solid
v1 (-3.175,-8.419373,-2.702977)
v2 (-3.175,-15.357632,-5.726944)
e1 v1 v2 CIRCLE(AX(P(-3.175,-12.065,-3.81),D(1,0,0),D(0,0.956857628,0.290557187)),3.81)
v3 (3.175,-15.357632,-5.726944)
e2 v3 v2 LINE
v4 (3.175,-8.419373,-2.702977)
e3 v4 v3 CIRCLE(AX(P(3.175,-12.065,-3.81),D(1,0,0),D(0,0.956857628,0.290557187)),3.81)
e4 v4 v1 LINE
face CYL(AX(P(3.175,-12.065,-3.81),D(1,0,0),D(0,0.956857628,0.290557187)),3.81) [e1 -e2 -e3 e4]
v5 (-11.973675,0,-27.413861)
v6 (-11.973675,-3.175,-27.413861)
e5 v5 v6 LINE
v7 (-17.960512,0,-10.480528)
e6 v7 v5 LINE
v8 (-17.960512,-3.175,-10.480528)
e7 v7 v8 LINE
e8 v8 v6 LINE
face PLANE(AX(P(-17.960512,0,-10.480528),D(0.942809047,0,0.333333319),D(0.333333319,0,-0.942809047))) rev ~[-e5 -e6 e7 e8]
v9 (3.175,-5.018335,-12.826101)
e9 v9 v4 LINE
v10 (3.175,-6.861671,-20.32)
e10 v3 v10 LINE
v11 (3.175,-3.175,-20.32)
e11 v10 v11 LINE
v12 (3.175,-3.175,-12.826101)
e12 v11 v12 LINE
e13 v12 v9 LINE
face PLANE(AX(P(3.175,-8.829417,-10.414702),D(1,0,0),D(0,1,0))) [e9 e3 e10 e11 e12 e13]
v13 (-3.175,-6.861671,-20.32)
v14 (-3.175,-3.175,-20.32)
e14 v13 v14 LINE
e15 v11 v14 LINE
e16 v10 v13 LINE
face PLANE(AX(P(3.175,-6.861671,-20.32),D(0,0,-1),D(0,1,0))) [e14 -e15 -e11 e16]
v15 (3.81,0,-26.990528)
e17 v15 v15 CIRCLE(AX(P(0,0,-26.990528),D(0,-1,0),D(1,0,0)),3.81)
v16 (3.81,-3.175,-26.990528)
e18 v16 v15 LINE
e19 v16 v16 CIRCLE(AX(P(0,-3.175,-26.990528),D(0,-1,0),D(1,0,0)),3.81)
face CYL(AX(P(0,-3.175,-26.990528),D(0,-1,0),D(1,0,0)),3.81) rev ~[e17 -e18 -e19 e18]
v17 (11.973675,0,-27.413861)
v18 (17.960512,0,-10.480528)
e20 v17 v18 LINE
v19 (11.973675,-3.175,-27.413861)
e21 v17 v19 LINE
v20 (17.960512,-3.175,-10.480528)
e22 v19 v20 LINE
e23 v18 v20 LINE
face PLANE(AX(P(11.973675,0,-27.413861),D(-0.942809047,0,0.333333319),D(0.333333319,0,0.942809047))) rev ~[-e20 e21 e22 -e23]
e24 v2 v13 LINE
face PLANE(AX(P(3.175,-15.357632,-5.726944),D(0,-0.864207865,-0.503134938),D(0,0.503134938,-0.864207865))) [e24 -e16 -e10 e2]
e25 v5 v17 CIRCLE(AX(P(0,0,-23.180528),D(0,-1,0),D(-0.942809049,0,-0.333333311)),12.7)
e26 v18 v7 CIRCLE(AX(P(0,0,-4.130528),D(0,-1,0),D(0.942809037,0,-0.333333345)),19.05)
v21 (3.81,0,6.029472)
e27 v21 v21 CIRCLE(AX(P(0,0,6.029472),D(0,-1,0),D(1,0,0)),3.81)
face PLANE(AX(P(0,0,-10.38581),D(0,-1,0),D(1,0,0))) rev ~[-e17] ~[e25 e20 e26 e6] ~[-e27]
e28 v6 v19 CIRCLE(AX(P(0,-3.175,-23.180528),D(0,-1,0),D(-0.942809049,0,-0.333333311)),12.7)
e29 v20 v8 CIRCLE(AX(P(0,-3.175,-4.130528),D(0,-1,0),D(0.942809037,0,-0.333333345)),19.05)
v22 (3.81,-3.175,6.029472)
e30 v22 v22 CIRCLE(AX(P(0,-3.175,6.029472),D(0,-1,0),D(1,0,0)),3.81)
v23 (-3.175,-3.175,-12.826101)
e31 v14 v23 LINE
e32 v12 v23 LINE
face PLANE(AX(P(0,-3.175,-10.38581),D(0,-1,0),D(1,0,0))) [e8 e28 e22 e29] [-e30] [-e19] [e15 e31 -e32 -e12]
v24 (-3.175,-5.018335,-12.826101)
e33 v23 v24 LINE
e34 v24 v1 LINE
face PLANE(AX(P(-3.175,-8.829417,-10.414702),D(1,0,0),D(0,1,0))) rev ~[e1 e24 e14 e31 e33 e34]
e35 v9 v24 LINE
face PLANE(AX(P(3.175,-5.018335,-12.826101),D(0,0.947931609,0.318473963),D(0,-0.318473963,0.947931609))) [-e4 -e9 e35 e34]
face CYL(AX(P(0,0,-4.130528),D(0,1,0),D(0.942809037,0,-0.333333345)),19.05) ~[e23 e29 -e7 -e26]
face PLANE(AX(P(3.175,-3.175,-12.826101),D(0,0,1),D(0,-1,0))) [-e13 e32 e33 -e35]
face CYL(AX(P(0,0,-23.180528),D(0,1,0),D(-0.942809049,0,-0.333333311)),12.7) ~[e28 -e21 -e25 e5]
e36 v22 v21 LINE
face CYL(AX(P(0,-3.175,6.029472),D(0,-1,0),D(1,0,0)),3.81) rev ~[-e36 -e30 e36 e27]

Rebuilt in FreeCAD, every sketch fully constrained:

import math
import FreeCAD as App
import Part
import Sketcher
from FreeCAD import Vector
Q = App.Units.Quantity

doc = App.newDocument("Part")
params = doc.addObject("Spreadsheet::Sheet", "Params")
for row, (alias, value) in enumerate([
    ("sketch1_radius", "0.5 in"),
    ("sketch1_radius2", "0.75 in"),
    ("pad1_length", "0.125 in"),
    ("sketch2_diameter", "0.3 in"),
    ("pocket1_length", "1 in"),
    ("sketch3_radius", "0.15 in"),
    ("pad2_length", "0.25 in"),
], start=1):
    params.set(f"A{row}", alias)
    params.set(f"B{row}", "=" + value)
    params.setAlias(f"B{row}", alias)

body = doc.addObject("PartDesign::Body", "Body")

# Sketch on XZ plane
sketch1 = body.newObject("Sketcher::SketchObject", "Sketch")
sketch1.AttachmentSupport = (doc.getObject("XZ_Plane"), [""])
sketch1.MapMode = "FlatFace"
sketch1.addGeometry([
    Part.LineSegment(Vector(-17.960512, -10.480528, 0), Vector(-11.973675, -27.413861, 0)),
    Part.ArcOfCircle(Part.Circle(Vector(0, -23.180528, 0), Vector(0, 0, 1), 12.7), math.radians(-160.528781), math.radians(-19.471219)),
    Part.LineSegment(Vector(11.973675, -27.413861, 0), Vector(17.960512, -10.480528, 0)),
    Part.ArcOfCircle(Part.Circle(Vector(0, -4.130528, 0), Vector(0, 0, 1), 19.05), math.radians(-19.471221), math.radians(199.471221)),
], False)
sketch1.addConstraint([
    Sketcher.Constraint("Tangent", 0, 2, 1, 1),
    Sketcher.Constraint("Tangent", 1, 2, 2, 1),
    Sketcher.Constraint("Tangent", 2, 2, 3, 1),
    Sketcher.Constraint("Tangent", 3, 2, 0, 1),
    Sketcher.Constraint("Symmetric", 0, 2, 1, 2, -2),
    Sketcher.Constraint("Radius", 1, Q("0.5 in")),
    Sketcher.Constraint("Radius", 3, Q("0.75 in")),
    Sketcher.Constraint("DistanceY", 1, 3, 2, 2, Q("0.5 in")),
    Sketcher.Constraint("DistanceY", 0, 2, -1, 1, Q("27.413861 mm")),
])
sketch1.setExpression("Constraints[5]", "Params.sketch1_radius")
sketch1.setExpression("Constraints[6]", "Params.sketch1_radius2")
pad1 = body.newObject("PartDesign::Pad", "Pad")
pad1.Profile = sketch1
pad1.setExpression("Length", "Params.pad1_length")

# Sketch on XZ plane
sketch2 = body.newObject("Sketcher::SketchObject", "Sketch001")
sketch2.AttachmentSupport = (doc.getObject("XZ_Plane"), [""])
sketch2.MapMode = "FlatFace"
sketch2.AttachmentOffset = App.Placement(Vector(0, 0, 0.125 * 25.4), App.Rotation())
sketch2.addGeometry([
    Part.Circle(Vector(0, 6.029472, 0), Vector(0, 0, 1), 3.81),
    Part.Circle(Vector(0, -26.990528, 0), Vector(0, 0, 1), 3.81),
], False)
sketch2.addConstraint([
    Sketcher.Constraint("Equal", 0, 1),
    Sketcher.Constraint("PointOnObject", 0, 3, -2),
    Sketcher.Constraint("PointOnObject", 1, 3, -2),
    Sketcher.Constraint("Diameter", 0, Q("0.3 in")),
    Sketcher.Constraint("DistanceY", 1, 3, 0, 3, Q("1.3 in")),
    Sketcher.Constraint("DistanceY", 1, 3, -1, 1, Q("26.990528 mm")),
])
sketch2.setExpression("Constraints[3]", "Params.sketch2_diameter")
pocket1 = body.newObject("PartDesign::Pocket", "Pocket")
pocket1.Profile = sketch2
pocket1.setExpression("Length", "Params.pocket1_length")

# Sketch on YZ plane
sketch3 = body.newObject("Sketcher::SketchObject", "Sketch002")
sketch3.AttachmentSupport = (doc.getObject("YZ_Plane"), [""])
sketch3.MapMode = "FlatFace"
sketch3.AttachmentOffset = App.Placement(Vector(0, 0, 0.125 * 25.4), App.Rotation())
sketch3.addGeometry([
    Part.LineSegment(Vector(-15.357632, -5.726944, 0), Vector(-6.861671, -20.32, 0)),  # 0
    Part.LineSegment(Vector(-6.861671, -20.32, 0), Vector(-3.175, -20.32, 0)),  # 1
    Part.LineSegment(Vector(-3.175, -20.32, 0), Vector(-3.175, -12.826101, 0)),  # 2
    Part.LineSegment(Vector(-3.175, -12.826101, 0), Vector(-5.018335, -12.826101, 0)),  # 3
    Part.LineSegment(Vector(-5.018335, -12.826101, 0), Vector(-8.419373, -2.702977, 0)),  # 4
    Part.ArcOfCircle(Part.Circle(Vector(-12.065, -3.81, 0), Vector(0, 0, 1), 3.81), math.radians(16.891317), math.radians(210.207627)),  # 5
], False)
sketch3.addConstraint([
    Sketcher.Constraint("Coincident", 0, 2, 1, 1),
    Sketcher.Constraint("Coincident", 1, 2, 2, 1),
    Sketcher.Constraint("Coincident", 2, 2, 3, 1),
    Sketcher.Constraint("Coincident", 3, 2, 4, 1),
    Sketcher.Constraint("Coincident", 4, 2, 5, 1),
    Sketcher.Constraint("Tangent", 5, 2, 0, 1),
    Sketcher.Constraint("Horizontal", 1),
    Sketcher.Constraint("Vertical", 2),
    Sketcher.Constraint("Horizontal", 3),
    Sketcher.Constraint("Radius", 5, Q("0.15 in")),
    Sketcher.Constraint("DistanceY", 0, 2, -1, 1, Q("0.8 in")),
    Sketcher.Constraint("DistanceY", 5, 3, -1, 1, Q("0.15 in")),
    Sketcher.Constraint("DistanceX", 5, 3, 1, 2, Q("0.35 in")),
    Sketcher.Constraint("DistanceX", 5, 3, -1, 1, Q("0.475 in")),
    Sketcher.Constraint("DistanceY", 2, 1, 2, 2, Q("7.493899 mm")),
    Sketcher.Constraint("DistanceX", 1, 1, 1, 2, Q("3.686671 mm")),
    Sketcher.Constraint("DistanceX", 4, 2, 0, 2, Q("1.557702 mm")),
    Sketcher.Constraint("Distance", 4, Q("10.679171 mm")),
])
sketch3.setExpression("Constraints[9]", "Params.sketch3_radius")
pad2 = body.newObject("PartDesign::Pad", "Pad001")
pad2.Profile = sketch3
pad2.setExpression("Length", "Params.pad2_length")
pad2.Reversed = True

doc.recompute()
